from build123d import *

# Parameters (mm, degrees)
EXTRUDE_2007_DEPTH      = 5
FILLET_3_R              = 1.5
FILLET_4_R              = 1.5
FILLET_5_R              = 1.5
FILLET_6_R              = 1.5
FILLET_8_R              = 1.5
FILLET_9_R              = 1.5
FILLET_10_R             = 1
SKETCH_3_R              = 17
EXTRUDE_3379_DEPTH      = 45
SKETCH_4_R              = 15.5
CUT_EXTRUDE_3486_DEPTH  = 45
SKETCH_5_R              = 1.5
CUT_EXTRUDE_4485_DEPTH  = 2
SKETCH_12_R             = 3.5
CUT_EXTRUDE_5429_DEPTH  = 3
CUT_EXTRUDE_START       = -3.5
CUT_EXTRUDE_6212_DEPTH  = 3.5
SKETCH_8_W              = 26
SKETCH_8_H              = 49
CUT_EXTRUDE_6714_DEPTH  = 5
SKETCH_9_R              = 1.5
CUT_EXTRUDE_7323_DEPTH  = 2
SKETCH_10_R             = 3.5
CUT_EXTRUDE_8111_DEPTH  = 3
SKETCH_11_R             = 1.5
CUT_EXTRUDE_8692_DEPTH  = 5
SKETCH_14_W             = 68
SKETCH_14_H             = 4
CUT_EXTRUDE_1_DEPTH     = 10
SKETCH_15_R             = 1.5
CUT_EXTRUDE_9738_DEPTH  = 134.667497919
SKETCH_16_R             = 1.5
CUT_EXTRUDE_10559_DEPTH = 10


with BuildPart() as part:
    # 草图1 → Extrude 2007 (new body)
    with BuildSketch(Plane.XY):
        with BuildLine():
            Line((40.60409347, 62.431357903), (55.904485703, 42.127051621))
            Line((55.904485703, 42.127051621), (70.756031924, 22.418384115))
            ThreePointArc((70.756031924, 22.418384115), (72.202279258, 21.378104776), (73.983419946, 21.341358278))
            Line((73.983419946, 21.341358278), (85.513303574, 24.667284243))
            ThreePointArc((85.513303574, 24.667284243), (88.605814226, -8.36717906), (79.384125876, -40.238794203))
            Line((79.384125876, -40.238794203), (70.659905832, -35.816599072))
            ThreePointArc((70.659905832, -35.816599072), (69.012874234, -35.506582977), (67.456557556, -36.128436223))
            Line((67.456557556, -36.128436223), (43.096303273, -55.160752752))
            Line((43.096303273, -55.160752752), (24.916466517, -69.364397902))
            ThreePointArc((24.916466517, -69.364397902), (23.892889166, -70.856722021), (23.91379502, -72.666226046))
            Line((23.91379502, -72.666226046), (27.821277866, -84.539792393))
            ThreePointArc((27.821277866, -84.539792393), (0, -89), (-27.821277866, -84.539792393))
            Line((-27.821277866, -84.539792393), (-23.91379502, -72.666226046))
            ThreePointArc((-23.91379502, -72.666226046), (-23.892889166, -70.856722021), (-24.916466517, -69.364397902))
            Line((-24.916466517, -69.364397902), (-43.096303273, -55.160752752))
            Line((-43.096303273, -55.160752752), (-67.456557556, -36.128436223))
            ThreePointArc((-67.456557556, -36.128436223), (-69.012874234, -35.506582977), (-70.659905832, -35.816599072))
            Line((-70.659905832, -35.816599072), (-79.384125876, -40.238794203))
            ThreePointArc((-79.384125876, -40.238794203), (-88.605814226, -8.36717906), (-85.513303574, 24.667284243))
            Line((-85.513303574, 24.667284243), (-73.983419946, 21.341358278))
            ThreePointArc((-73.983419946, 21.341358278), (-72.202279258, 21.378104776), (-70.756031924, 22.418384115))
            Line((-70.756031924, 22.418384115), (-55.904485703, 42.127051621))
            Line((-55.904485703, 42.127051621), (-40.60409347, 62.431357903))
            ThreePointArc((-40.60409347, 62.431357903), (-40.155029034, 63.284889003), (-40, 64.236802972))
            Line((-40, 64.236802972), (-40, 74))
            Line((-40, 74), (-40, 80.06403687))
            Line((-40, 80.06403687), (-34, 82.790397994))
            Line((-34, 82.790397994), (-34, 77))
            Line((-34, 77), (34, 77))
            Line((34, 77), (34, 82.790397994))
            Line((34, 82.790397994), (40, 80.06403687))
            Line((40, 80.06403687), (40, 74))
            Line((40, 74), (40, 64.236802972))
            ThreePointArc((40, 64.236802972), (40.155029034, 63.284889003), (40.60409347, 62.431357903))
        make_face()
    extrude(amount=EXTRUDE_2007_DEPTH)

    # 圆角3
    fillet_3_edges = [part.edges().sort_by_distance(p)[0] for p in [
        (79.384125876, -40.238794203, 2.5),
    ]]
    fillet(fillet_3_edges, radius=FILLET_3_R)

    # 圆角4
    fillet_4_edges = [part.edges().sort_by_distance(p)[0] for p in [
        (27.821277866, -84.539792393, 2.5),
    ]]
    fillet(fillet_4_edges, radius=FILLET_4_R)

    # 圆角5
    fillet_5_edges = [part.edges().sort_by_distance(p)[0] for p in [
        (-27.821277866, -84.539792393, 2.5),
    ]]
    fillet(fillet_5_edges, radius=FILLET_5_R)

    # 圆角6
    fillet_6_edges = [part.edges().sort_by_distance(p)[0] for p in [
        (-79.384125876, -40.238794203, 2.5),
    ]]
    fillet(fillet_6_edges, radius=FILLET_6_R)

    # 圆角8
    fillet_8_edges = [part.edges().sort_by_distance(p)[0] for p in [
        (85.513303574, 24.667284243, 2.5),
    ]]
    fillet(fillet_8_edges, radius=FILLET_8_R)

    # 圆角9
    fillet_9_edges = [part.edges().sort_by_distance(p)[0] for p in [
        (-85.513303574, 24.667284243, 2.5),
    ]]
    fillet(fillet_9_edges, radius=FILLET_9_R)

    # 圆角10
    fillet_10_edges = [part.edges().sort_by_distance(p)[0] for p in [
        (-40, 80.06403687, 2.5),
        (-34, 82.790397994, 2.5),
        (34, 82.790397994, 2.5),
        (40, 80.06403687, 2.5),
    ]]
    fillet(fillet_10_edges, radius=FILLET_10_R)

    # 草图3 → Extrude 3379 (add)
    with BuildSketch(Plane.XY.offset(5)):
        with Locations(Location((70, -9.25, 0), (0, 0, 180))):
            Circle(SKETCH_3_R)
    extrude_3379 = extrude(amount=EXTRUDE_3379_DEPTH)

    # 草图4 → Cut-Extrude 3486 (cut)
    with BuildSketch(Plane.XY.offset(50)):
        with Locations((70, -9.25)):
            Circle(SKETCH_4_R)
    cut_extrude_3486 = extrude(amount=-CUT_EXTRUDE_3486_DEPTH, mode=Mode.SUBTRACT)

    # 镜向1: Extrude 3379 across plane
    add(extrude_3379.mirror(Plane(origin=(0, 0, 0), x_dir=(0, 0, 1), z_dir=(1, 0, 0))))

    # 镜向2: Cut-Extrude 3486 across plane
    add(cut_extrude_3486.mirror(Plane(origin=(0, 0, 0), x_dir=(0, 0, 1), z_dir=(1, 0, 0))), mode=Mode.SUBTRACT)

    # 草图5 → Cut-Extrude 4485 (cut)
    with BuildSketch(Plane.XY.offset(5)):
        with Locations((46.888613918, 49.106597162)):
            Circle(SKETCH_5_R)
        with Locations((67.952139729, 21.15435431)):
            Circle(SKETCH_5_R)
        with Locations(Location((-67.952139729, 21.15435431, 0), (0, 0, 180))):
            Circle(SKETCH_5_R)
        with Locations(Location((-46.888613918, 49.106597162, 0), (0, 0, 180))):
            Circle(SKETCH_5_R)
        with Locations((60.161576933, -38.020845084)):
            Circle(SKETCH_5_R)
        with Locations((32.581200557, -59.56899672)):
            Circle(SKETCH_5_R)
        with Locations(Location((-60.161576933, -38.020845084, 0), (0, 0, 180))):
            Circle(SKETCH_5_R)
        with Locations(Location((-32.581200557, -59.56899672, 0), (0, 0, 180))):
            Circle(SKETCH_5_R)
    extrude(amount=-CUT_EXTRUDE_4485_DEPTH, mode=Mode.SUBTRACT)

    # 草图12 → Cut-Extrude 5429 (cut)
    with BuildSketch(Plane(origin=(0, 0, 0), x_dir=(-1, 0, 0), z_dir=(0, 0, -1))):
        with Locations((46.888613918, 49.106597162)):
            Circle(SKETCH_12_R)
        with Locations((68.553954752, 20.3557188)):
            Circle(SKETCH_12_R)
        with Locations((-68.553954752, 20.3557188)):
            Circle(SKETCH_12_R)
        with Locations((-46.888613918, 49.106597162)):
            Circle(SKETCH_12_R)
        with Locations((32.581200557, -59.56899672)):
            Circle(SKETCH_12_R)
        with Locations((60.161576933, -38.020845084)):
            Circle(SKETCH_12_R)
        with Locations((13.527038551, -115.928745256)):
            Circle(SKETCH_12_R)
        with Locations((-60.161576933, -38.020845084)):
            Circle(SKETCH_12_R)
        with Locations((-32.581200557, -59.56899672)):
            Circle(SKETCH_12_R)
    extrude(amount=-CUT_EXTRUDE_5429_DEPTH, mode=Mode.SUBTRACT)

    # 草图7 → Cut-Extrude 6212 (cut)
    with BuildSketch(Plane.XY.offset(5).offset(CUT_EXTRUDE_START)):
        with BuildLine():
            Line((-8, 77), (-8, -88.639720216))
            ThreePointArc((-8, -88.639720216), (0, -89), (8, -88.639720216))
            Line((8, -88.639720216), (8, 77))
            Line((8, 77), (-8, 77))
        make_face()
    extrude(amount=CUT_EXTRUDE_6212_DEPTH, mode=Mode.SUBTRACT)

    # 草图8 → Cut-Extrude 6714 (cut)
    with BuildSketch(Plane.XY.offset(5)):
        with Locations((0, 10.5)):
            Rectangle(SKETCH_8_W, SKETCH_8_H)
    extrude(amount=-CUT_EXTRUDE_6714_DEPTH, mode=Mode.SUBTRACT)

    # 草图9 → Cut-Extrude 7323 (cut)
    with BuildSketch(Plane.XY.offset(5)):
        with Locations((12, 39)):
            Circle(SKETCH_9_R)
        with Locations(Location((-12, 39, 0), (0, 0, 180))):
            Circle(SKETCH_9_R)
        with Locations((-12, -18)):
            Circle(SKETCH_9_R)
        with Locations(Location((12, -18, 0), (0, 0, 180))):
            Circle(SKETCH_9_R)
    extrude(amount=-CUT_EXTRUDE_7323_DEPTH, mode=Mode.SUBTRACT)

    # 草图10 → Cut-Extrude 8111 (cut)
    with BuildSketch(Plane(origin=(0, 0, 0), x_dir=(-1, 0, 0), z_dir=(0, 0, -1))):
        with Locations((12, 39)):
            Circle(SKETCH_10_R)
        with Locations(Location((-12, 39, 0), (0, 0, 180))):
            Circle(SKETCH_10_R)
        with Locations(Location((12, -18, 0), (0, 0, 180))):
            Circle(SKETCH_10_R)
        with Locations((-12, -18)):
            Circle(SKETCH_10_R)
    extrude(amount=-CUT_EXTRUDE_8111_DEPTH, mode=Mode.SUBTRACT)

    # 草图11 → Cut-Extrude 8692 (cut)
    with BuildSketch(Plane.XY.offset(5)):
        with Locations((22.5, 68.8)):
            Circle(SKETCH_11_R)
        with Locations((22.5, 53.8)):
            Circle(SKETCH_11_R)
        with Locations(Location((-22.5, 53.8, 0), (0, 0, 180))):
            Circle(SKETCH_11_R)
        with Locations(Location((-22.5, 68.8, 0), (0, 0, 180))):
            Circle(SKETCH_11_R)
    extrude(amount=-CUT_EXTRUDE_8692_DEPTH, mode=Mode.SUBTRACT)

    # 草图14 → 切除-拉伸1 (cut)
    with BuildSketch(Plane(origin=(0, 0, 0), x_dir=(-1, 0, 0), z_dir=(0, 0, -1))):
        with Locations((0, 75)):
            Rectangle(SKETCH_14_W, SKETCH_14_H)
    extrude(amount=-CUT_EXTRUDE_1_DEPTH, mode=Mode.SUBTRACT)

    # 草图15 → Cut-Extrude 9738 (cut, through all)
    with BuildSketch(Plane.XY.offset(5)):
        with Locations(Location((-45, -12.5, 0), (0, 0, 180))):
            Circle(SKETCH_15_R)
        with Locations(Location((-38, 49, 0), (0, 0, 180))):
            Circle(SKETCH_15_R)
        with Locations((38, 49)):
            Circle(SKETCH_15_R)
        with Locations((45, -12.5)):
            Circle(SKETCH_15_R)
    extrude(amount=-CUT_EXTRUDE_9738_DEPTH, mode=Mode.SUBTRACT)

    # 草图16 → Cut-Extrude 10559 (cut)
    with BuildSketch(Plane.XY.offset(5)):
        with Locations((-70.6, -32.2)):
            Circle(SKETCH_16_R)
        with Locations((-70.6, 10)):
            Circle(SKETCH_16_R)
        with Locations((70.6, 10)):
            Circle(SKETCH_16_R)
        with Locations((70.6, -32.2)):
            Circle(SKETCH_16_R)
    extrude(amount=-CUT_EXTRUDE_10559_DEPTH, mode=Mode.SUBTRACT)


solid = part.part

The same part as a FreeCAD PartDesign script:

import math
import FreeCAD as App
import Part
import Sketcher
Q = App.Units.Quantity


def edges_at(feature, points):
    """Names of the edges that pass closest to the given points."""
    edges = feature.Shape.Edges
    near = lambda p: min(range(len(edges)), key=lambda i: edges[i].distToShape(Part.Vertex(*p))[0])
    return sorted({f"Edge{near(p) + 1}" for p in points})

doc = App.newDocument("Part")
body = doc.addObject("PartDesign::Body", "Body")

# Sketch on XY plane
sketch1 = body.newObject("Sketcher::SketchObject", "Sketch")
sketch1.AttachmentSupport = (doc.getObject("XY_Plane"), [""])
sketch1.MapMode = "FlatFace"
sketch1.addGeometry(Part.LineSegment(App.Vector(55.904486, 42.127052, 0), App.Vector(40.604093, 62.431358, 0)), False)
sketch1.addGeometry(Part.ArcOfCircle(Part.Circle(App.Vector(43, 64.236803, 0), App.Vector(0, 0, 1), 3), math.radians(180), math.radians(217)), False)
sketch1.addGeometry(Part.LineSegment(App.Vector(40, 64.236803, 0), App.Vector(40, 80.064037, 0)), False)
sketch1.addGeometry(Part.LineSegment(App.Vector(40, 80.064037, 0), App.Vector(34, 82.790398, 0)), False)
sketch1.addGeometry(Part.LineSegment(App.Vector(34, 82.790398, 0), App.Vector(34, 77, 0)), False)
sketch1.addGeometry(Part.LineSegment(App.Vector(34, 77, 0), App.Vector(-34, 77, 0)), False)
sketch1.addGeometry(Part.LineSegment(App.Vector(-34, 77, 0), App.Vector(-34, 82.790398, 0)), False)
sketch1.addGeometry(Part.LineSegment(App.Vector(-34, 82.790398, 0), App.Vector(-40, 80.064037, 0)), False)
sketch1.addGeometry(Part.LineSegment(App.Vector(-40, 80.064037, 0), App.Vector(-40, 64.236803, 0)), False)
sketch1.addGeometry(Part.ArcOfCircle(Part.Circle(App.Vector(-43, 64.236803, 0), App.Vector(0, 0, 1), 3), math.radians(-37), math.radians(0)), False)
sketch1.addGeometry(Part.LineSegment(App.Vector(-40.604093, 62.431358, 0), App.Vector(-55.904486, 42.127052, 0)), False)
sketch1.addGeometry(Part.LineSegment(App.Vector(-55.904486, 42.127052, 0), App.Vector(-70.756032, 22.418384, 0)), False)
sketch1.addGeometry(Part.ArcOfCircle(Part.Circle(App.Vector(-73.151938, 24.223829, 0), App.Vector(0, 0, 1), 3), math.radians(-106.090807), math.radians(-37)), False)
sketch1.addGeometry(Part.LineSegment(App.Vector(-73.98342, 21.341358, 0), App.Vector(-85.513304, 24.667284, 0)), False)
sketch1.addGeometry(Part.ArcOfCircle(Part.Circle(App.Vector(0, 0, 0), App.Vector(0, 0, 1), 89), math.radians(163.909193), math.radians(206.879865)), False)
sketch1.addGeometry(Part.LineSegment(App.Vector(-79.384126, -40.238794, 0), App.Vector(-70.659906, -35.816599, 0)), False)
sketch1.addGeometry(Part.ArcOfCircle(Part.Circle(App.Vector(-69.303542, -38.492468, 0), App.Vector(0, 0, 1), 3), math.radians(52), math.radians(116.879865)), False)
sketch1.addGeometry(Part.LineSegment(App.Vector(-67.456558, -36.128436, 0), App.Vector(-43.096303, -55.160753, 0)), False)
sketch1.addGeometry(Part.LineSegment(App.Vector(-43.096303, -55.160753, 0), App.Vector(-24.916467, -69.364398, 0)), False)
sketch1.addGeometry(Part.ArcOfCircle(Part.Circle(App.Vector(-26.763451, -71.72843, 0), App.Vector(0, 0, 1), 3), math.radians(-18.215906), math.radians(52)), False)
sketch1.addGeometry(Part.LineSegment(App.Vector(-23.913795, -72.666226, 0), App.Vector(-27.821278, -84.539792, 0)), False)
sketch1.addGeometry(Part.ArcOfCircle(Part.Circle(App.Vector(0, 0, 0), App.Vector(0, 0, 1), 89), math.radians(-108.215906), math.radians(-71.784094)), False)
sketch1.addGeometry(Part.LineSegment(App.Vector(27.821278, -84.539792, 0), App.Vector(23.913795, -72.666226, 0)), False)
sketch1.addGeometry(Part.ArcOfCircle(Part.Circle(App.Vector(26.763451, -71.72843, 0), App.Vector(0, 0, 1), 3), math.radians(128), math.radians(198.215906)), False)
sketch1.addGeometry(Part.LineSegment(App.Vector(24.916467, -69.364398, 0), App.Vector(43.096303, -55.160753, 0)), False)
sketch1.addGeometry(Part.LineSegment(App.Vector(43.096303, -55.160753, 0), App.Vector(67.456558, -36.128436, 0)), False)
sketch1.addGeometry(Part.ArcOfCircle(Part.Circle(App.Vector(69.303542, -38.492468, 0), App.Vector(0, 0, 1), 3), math.radians(63.120135), math.radians(128)), False)
sketch1.addGeometry(Part.LineSegment(App.Vector(70.659906, -35.816599, 0), App.Vector(79.384126, -40.238794, 0)), False)
sketch1.addGeometry(Part.ArcOfCircle(Part.Circle(App.Vector(0, 0, 0), App.Vector(0, 0, 1), 89), math.radians(-26.879865), math.radians(16.090807)), False)
sketch1.addGeometry(Part.LineSegment(App.Vector(85.513304, 24.667284, 0), App.Vector(73.98342, 21.341358, 0)), False)
sketch1.addGeometry(Part.ArcOfCircle(Part.Circle(App.Vector(73.151938, 24.223829, 0), App.Vector(0, 0, 1), 3), math.radians(-143), math.radians(-73.909193)), False)
sketch1.addGeometry(Part.LineSegment(App.Vector(70.756032, 22.418384, 0), App.Vector(55.904486, 42.127052, 0)), False)
sketch1.addConstraint(Sketcher.Constraint("Tangent", 0, 2, 1, 2))
sketch1.addConstraint(Sketcher.Constraint("Tangent", 1, 1, 2, 1))
sketch1.addConstraint(Sketcher.Constraint("Coincident", 2, 2, 3, 1))
sketch1.addConstraint(Sketcher.Constraint("Coincident", 3, 2, 4, 1))
sketch1.addConstraint(Sketcher.Constraint("Coincident", 4, 2, 5, 1))
sketch1.addConstraint(Sketcher.Constraint("Coincident", 5, 2, 6, 1))
sketch1.addConstraint(Sketcher.Constraint("Coincident", 6, 2, 7, 1))
sketch1.addConstraint(Sketcher.Constraint("Coincident", 7, 2, 8, 1))
sketch1.addConstraint(Sketcher.Constraint("Tangent", 8, 2, 9, 2))
sketch1.addConstraint(Sketcher.Constraint("Tangent", 9, 1, 10, 1))
sketch1.addConstraint(Sketcher.Constraint("Coincident", 10, 2, 11, 1))
sketch1.addConstraint(Sketcher.Constraint("Tangent", 11, 2, 12, 2))
sketch1.addConstraint(Sketcher.Constraint("Tangent", 12, 1, 13, 1))
sketch1.addConstraint(Sketcher.Constraint("Coincident", 13, 2, 14, 1))
sketch1.addConstraint(Sketcher.Constraint("Coincident", 14, 2, 15, 1))
sketch1.addConstraint(Sketcher.Constraint("Tangent", 15, 2, 16, 2))
sketch1.addConstraint(Sketcher.Constraint("Tangent", 16, 1, 17, 1))
sketch1.addConstraint(Sketcher.Constraint("Coincident", 17, 2, 18, 1))
sketch1.addConstraint(Sketcher.Constraint("Tangent", 18, 2, 19, 2))
sketch1.addConstraint(Sketcher.Constraint("Tangent", 19, 1, 20, 1))
sketch1.addConstraint(Sketcher.Constraint("Coincident", 20, 2, 21, 1))
sketch1.addConstraint(Sketcher.Constraint("Coincident", 21, 2, 22, 1))
sketch1.addConstraint(Sketcher.Constraint("Tangent", 22, 2, 23, 2))
sketch1.addConstraint(Sketcher.Constraint("Tangent", 23, 1, 24, 1))
sketch1.addConstraint(Sketcher.Constraint("Coincident", 24, 2, 25, 1))
sketch1.addConstraint(Sketcher.Constraint("Tangent", 25, 2, 26, 2))
sketch1.addConstraint(Sketcher.Constraint("Tangent", 26, 1, 27, 1))
sketch1.addConstraint(Sketcher.Constraint("Coincident", 27, 2, 28, 1))
sketch1.addConstraint(Sketcher.Constraint("Coincident", 28, 2, 29, 1))
sketch1.addConstraint(Sketcher.Constraint("Tangent", 29, 2, 30, 2))
sketch1.addConstraint(Sketcher.Constraint("Tangent", 30, 1, 31, 1))
sketch1.addConstraint(Sketcher.Constraint("Coincident", 31, 2, 0, 1))
sketch1.addConstraint(Sketcher.Constraint("Vertical", 2))
sketch1.addConstraint(Sketcher.Constraint("Vertical", 4))
sketch1.addConstraint(Sketcher.Constraint("Horizontal", 5))
sketch1.addConstraint(Sketcher.Constraint("Vertical", 6))
sketch1.addConstraint(Sketcher.Constraint("Vertical", 8))
sketch1.addConstraint(Sketcher.Constraint("Coincident", 14, 3, -1, 1))
sketch1.addConstraint(Sketcher.Constraint("Coincident", 21, 3, -1, 1))
sketch1.addConstraint(Sketcher.Constraint("Coincident", 28, 3, -1, 1))
sketch1.addConstraint(Sketcher.Constraint("Equal", 1, 9))
sketch1.addConstraint(Sketcher.Constraint("Equal", 9, 12))
sketch1.addConstraint(Sketcher.Constraint("Equal", 12, 16))
sketch1.addConstraint(Sketcher.Constraint("Equal", 16, 19))
sketch1.addConstraint(Sketcher.Constraint("Equal", 14, 21))
sketch1.addConstraint(Sketcher.Constraint("Equal", 19, 23))
sketch1.addConstraint(Sketcher.Constraint("Equal", 23, 26))
sketch1.addConstraint(Sketcher.Constraint("Equal", 21, 28))
sketch1.addConstraint(Sketcher.Constraint("Equal", 26, 30))
sketch1.addConstraint(Sketcher.Constraint("Symmetric", 1, 3, 9, 3, -2))
sketch1.addConstraint(Sketcher.Constraint("Symmetric", 19, 3, 23, 3, -2))
sketch1.addConstraint(Sketcher.Constraint("Symmetric", 16, 3, 26, 3, -2))
sketch1.addConstraint(Sketcher.Constraint("Symmetric", 12, 3, 30, 3, -2))
sketch1.addConstraint(Sketcher.Constraint("Symmetric", 3, 2, 6, 2, -2))
sketch1.addConstraint(Sketcher.Constraint("Symmetric", 17, 2, 24, 2, -2))
sketch1.addConstraint(Sketcher.Constraint("Symmetric", 10, 2, 31, 2, -2))
sketch1.addConstraint(Sketcher.Constraint("Parallel", 10, 11))
sketch1.addConstraint(Sketcher.Constraint("Parallel", 17, 18))
sketch1.addConstraint(Sketcher.Constraint("Horizontal", 2, 2, 7, 2))
sketch1.addConstraint(Sketcher.Constraint("Horizontal", 20, 2, 21, 2))
sketch1.addConstraint(Sketcher.Constraint("Horizontal", 15, 2, 26, 1))
sketch1.addConstraint(Sketcher.Constraint("Horizontal", 13, 2, 28, 2))
sketch1.addConstraint(Sketcher.Constraint("Radius", 1, 3.0))
sketch1.addConstraint(Sketcher.Constraint("Radius", 14, 89.0))
sketch1.addConstraint(Sketcher.Constraint("DistanceX", 5, 2, 5, 1, 68.0))
sketch1.addConstraint(Sketcher.Constraint("Angle", 0, Q("127 deg")))
sketch1.addConstraint(Sketcher.Constraint("Angle", 17, Q("-38 deg")))
sketch1.addConstraint(Sketcher.Constraint("Distance", 13, 12.0))
sketch1.addConstraint(Sketcher.Constraint("DistanceX", -1, 1, 1, 3, 43.0))
sketch1.addConstraint(Sketcher.Constraint("DistanceY", -1, 1, 4, 2, 77.0))
sketch1.addConstraint(Sketcher.Constraint("Distance", 20, 12.5))
sketch1.addConstraint(Sketcher.Constraint("DistanceY", 12, 1, 9, 1, 41.09))
sketch1.addConstraint(Sketcher.Constraint("DistanceY", 15, 2, -1, 1, 35.816599))
sketch1.addConstraint(Sketcher.Constraint("DistanceX", 19, 3, 23, 3, 53.526902))
sketch1.addConstraint(Sketcher.Constraint("DistanceY", 11, 2, 13, 2, 2.2489))
sketch1.addConstraint(Sketcher.Constraint("DistanceY", 23, 1, 26, 1, 33.547799))
sketch1.addConstraint(Sketcher.Constraint("DistanceY", 2, 1, 2, 2, 15.827234))
sketch1.addConstraint(Sketcher.Constraint("DistanceY", 4, 2, 4, 1, 5.790398))
sketch1.addConstraint(Sketcher.Constraint("DistanceX", 16, 3, -1, 1, 69.303542))
sketch1.addConstraint(Sketcher.Constraint("DistanceY", -1, 1, 10, 2, 42.127052))
sketch1.addConstraint(Sketcher.Constraint("DistanceX", 16, 3, 17, 2, 26.207239))
pad1 = body.newObject("PartDesign::Pad", "Pad")
pad1.Profile = sketch1
pad1.Length = 5
doc.recompute()

fillet = body.newObject("PartDesign::Fillet", "Fillet")
fillet.Base = (pad1, edges_at(pad1, [(79.384, -40.239, 2.5)]))
fillet.Radius = 1.5
doc.recompute()

fillet2 = body.newObject("PartDesign::Fillet", "Fillet001")
fillet2.Base = (fillet, edges_at(fillet, [(27.821, -84.54, 2.5)]))
fillet2.Radius = 1.5
doc.recompute()

fillet3 = body.newObject("PartDesign::Fillet", "Fillet002")
fillet3.Base = (fillet2, edges_at(fillet2, [(-27.821, -84.54, 2.5)]))
fillet3.Radius = 1.5
doc.recompute()

fillet4 = body.newObject("PartDesign::Fillet", "Fillet003")
fillet4.Base = (fillet3, edges_at(fillet3, [(-79.384, -40.239, 2.5)]))
fillet4.Radius = 1.5
doc.recompute()

fillet5 = body.newObject("PartDesign::Fillet", "Fillet004")
fillet5.Base = (fillet4, edges_at(fillet4, [(85.513, 24.667, 2.5)]))
fillet5.Radius = 1.5
doc.recompute()

fillet6 = body.newObject("PartDesign::Fillet", "Fillet005")
fillet6.Base = (fillet5, edges_at(fillet5, [(-85.513, 24.667, 2.5)]))
fillet6.Radius = 1.5
doc.recompute()

fillet7 = body.newObject("PartDesign::Fillet", "Fillet006")
fillet7.Base = (fillet6, edges_at(fillet6, [
    (-40, 80.064, 2.5),
    (-34, 82.79, 2.5),
    (34, 82.79, 2.5),
    (40, 80.064, 2.5),
]))
fillet7.Radius = 1

# Sketch on XY plane
sketch2 = body.newObject("Sketcher::SketchObject", "Sketch001")
sketch2.AttachmentSupport = (doc.getObject("XY_Plane"), [""])
sketch2.MapMode = "FlatFace"
sketch2.AttachmentOffset = App.Placement(App.Vector(0, 0, 5), App.Rotation())
sketch2.addGeometry(Part.Circle(App.Vector(70, -9.25, 0), App.Vector(0, 0, 1), 17), False)
sketch2.addConstraint(Sketcher.Constraint("Diameter", 0, 34.0))
sketch2.addConstraint(Sketcher.Constraint("DistanceX", -1, 1, 0, 3, 70.0))
sketch2.addConstraint(Sketcher.Constraint("DistanceY", 0, 3, -1, 1, 9.25))
pad2 = body.newObject("PartDesign::Pad", "Pad001")
pad2.Profile = sketch2
pad2.Length = 45

# Sketch on XY plane
sketch3 = body.newObject("Sketcher::SketchObject", "Sketch002")
sketch3.AttachmentSupport = (doc.getObject("XY_Plane"), [""])
sketch3.MapMode = "FlatFace"
sketch3.AttachmentOffset = App.Placement(App.Vector(0, 0, 50), App.Rotation())
sketch3.addGeometry(Part.Circle(App.Vector(70, -9.25, 0), App.Vector(0, 0, 1), 15.5), False)
sketch3.addConstraint(Sketcher.Constraint("Diameter", 0, 31.0))
sketch3.addConstraint(Sketcher.Constraint("DistanceX", -1, 1, 0, 3, 70.0))
sketch3.addConstraint(Sketcher.Constraint("DistanceY", 0, 3, -1, 1, 9.25))
pocket1 = body.newObject("PartDesign::Pocket", "Pocket")
pocket1.Profile = sketch3
pocket1.Length = 45
doc.recompute()

mirrored = body.newObject("PartDesign::Mirrored", "Mirrored")
mirrored.Originals = [pad2]
mirrored.MirrorPlane = (doc.getObject("YZ_Plane"), [""])
body.Tip = mirrored
doc.recompute()

mirrored2 = body.newObject("PartDesign::Mirrored", "Mirrored001")
mirrored2.Originals = [pocket1]
mirrored2.MirrorPlane = (doc.getObject("YZ_Plane"), [""])
body.Tip = mirrored2

# Sketch on XY plane
sketch4 = body.newObject("Sketcher::SketchObject", "Sketch003")
sketch4.AttachmentSupport = (doc.getObject("XY_Plane"), [""])
sketch4.MapMode = "FlatFace"
sketch4.AttachmentOffset = App.Placement(App.Vector(0, 0, 5), App.Rotation())
sketch4.addGeometry(Part.Circle(App.Vector(46.888614, 49.106597, 0), App.Vector(0, 0, 1), 1.5), False)
sketch4.addGeometry(Part.Circle(App.Vector(67.95214, 21.154354, 0), App.Vector(0, 0, 1), 1.5), False)
sketch4.addGeometry(Part.Circle(App.Vector(-67.95214, 21.154354, 0), App.Vector(0, 0, 1), 1.5), False)
sketch4.addGeometry(Part.Circle(App.Vector(-46.888614, 49.106597, 0), App.Vector(0, 0, 1), 1.5), False)
sketch4.addGeometry(Part.Circle(App.Vector(60.161577, -38.020845, 0), App.Vector(0, 0, 1), 1.5), False)
sketch4.addGeometry(Part.Circle(App.Vector(32.581201, -59.568997, 0), App.Vector(0, 0, 1), 1.5), False)
sketch4.addGeometry(Part.Circle(App.Vector(-60.161577, -38.020845, 0), App.Vector(0, 0, 1), 1.5), False)
sketch4.addGeometry(Part.Circle(App.Vector(-32.581201, -59.568997, 0), App.Vector(0, 0, 1), 1.5), False)
sketch4.addConstraint(Sketcher.Constraint("Equal", 0, 1))
sketch4.addConstraint(Sketcher.Constraint("Equal", 1, 2))
sketch4.addConstraint(Sketcher.Constraint("Equal", 2, 3))
sketch4.addConstraint(Sketcher.Constraint("Equal", 3, 4))
sketch4.addConstraint(Sketcher.Constraint("Equal", 4, 5))
sketch4.addConstraint(Sketcher.Constraint("Equal", 5, 6))
sketch4.addConstraint(Sketcher.Constraint("Equal", 6, 7))
sketch4.addConstraint(Sketcher.Constraint("Symmetric", 1, 3, 2, 3, -2))
sketch4.addConstraint(Sketcher.Constraint("Symmetric", 0, 3, 3, 3, -2))
sketch4.addConstraint(Sketcher.Constraint("Symmetric", 4, 3, 6, 3, -2))
sketch4.addConstraint(Sketcher.Constraint("Symmetric", 5, 3, 7, 3, -2))
sketch4.addConstraint(Sketcher.Constraint("Diameter", 0, 3.0))
sketch4.addConstraint(Sketcher.Constraint("DistanceX", -1, 1, 5, 3, 32.581201))
sketch4.addConstraint(Sketcher.Constraint("DistanceY", 4, 3, 1, 3, 59.175199))
sketch4.addConstraint(Sketcher.Constraint("DistanceX", -1, 1, 1, 3, 67.95214))
sketch4.addConstraint(Sketcher.Constraint("DistanceX", 3, 3, 4, 3, 107.050191))
sketch4.addConstraint(Sketcher.Constraint("DistanceY", 5, 3, 4, 3, 21.548152))
sketch4.addConstraint(Sketcher.Constraint("DistanceX", -1, 1, 0, 3, 46.888614))
sketch4.addConstraint(Sketcher.Constraint("DistanceY", -1, 1, 0, 3, 49.106597))
sketch4.addConstraint(Sketcher.Constraint("DistanceY", -1, 1, 1, 3, 21.154354))
pocket2 = body.newObject("PartDesign::Pocket", "Pocket001")
pocket2.Profile = sketch4
pocket2.Length = 2

# Sketch on XY plane
sketch5 = body.newObject("Sketcher::SketchObject", "Sketch004")
sketch5.AttachmentSupport = (doc.getObject("XY_Plane"), [""])
sketch5.MapMode = "FlatFace"
sketch5.addGeometry(Part.Circle(App.Vector(-46.888614, 49.106597, 0), App.Vector(0, 0, 1), 3.5), False)
sketch5.addGeometry(Part.Circle(App.Vector(-68.553955, 20.355719, 0), App.Vector(0, 0, 1), 3.5), False)
sketch5.addGeometry(Part.Circle(App.Vector(68.553955, 20.355719, 0), App.Vector(0, 0, 1), 3.5), False)
sketch5.addGeometry(Part.Circle(App.Vector(46.888614, 49.106597, 0), App.Vector(0, 0, 1), 3.5), False)
sketch5.addGeometry(Part.Circle(App.Vector(-32.581201, -59.568997, 0), App.Vector(0, 0, 1), 3.5), False)
sketch5.addGeometry(Part.Circle(App.Vector(-60.161577, -38.020845, 0), App.Vector(0, 0, 1), 3.5), False)
sketch5.addGeometry(Part.Circle(App.Vector(-13.527039, -115.928745, 0), App.Vector(0, 0, 1), 3.5), False)
sketch5.addGeometry(Part.Circle(App.Vector(60.161577, -38.020845, 0), App.Vector(0, 0, 1), 3.5), False)
sketch5.addGeometry(Part.Circle(App.Vector(32.581201, -59.568997, 0), App.Vector(0, 0, 1), 3.5), False)
sketch5.addConstraint(Sketcher.Constraint("Equal", 0, 1))
sketch5.addConstraint(Sketcher.Constraint("Equal", 1, 2))
sketch5.addConstraint(Sketcher.Constraint("Equal", 2, 3))
sketch5.addConstraint(Sketcher.Constraint("Equal", 3, 4))
sketch5.addConstraint(Sketcher.Constraint("Equal", 4, 5))
sketch5.addConstraint(Sketcher.Constraint("Equal", 5, 6))
sketch5.addConstraint(Sketcher.Constraint("Equal", 6, 7))
sketch5.addConstraint(Sketcher.Constraint("Equal", 7, 8))
sketch5.addConstraint(Sketcher.Constraint("Symmetric", 1, 3, 2, 3, -2))
sketch5.addConstraint(Sketcher.Constraint("Symmetric", 0, 3, 3, 3, -2))
sketch5.addConstraint(Sketcher.Constraint("Symmetric", 5, 3, 7, 3, -2))
sketch5.addConstraint(Sketcher.Constraint("Symmetric", 4, 3, 8, 3, -2))
sketch5.addConstraint(Sketcher.Constraint("Diameter", 0, 7.0))
sketch5.addConstraint(Sketcher.Constraint("DistanceX", 4, 3, -1, 1, 32.581201))
sketch5.addConstraint(Sketcher.Constraint("DistanceY", 6, 3, 5, 3, 77.9079))
sketch5.addConstraint(Sketcher.Constraint("DistanceY", -1, 1, 1, 3, 20.355719))
sketch5.addConstraint(Sketcher.Constraint("DistanceX", 6, 3, -1, 1, 13.527039))
sketch5.addConstraint(Sketcher.Constraint("DistanceX", 1, 3, 0, 3, 21.665341))
sketch5.addConstraint(Sketcher.Constraint("DistanceY", 1, 3, 0, 3, 28.750878))
sketch5.addConstraint(Sketcher.Constraint("DistanceX", 0, 3, 2, 3, 115.442569))
sketch5.addConstraint(Sketcher.Constraint("DistanceY", 4, 3, 5, 3, 21.548152))
sketch5.addConstraint(Sketcher.Constraint("DistanceX", 5, 3, 3, 3, 107.050191))
sketch5.addConstraint(Sketcher.Constraint("DistanceY", 4, 3, -1, 1, 59.568997))
pocket3 = body.newObject("PartDesign::Pocket", "Pocket002")
pocket3.Profile = sketch5
pocket3.Length = 3
pocket3.Reversed = True

# Sketch on XY plane
sketch6 = body.newObject("Sketcher::SketchObject", "Sketch005")
sketch6.AttachmentSupport = (doc.getObject("XY_Plane"), [""])
sketch6.MapMode = "FlatFace"
sketch6.AttachmentOffset = App.Placement(App.Vector(0, 0, 1.5), App.Rotation())
sketch6.addGeometry(Part.LineSegment(App.Vector(-8, 77, 0), App.Vector(-8, -88.63972, 0)), False)
sketch6.addGeometry(Part.ArcOfCircle(Part.Circle(App.Vector(0, 0, 0), App.Vector(0, 0, 1), 89), math.radians(-95.157143), math.radians(-84.842857)), False)
sketch6.addGeometry(Part.LineSegment(App.Vector(8, -88.63972, 0), App.Vector(8, 77, 0)), False)
sketch6.addGeometry(Part.LineSegment(App.Vector(8, 77, 0), App.Vector(-8, 77, 0)), False)
sketch6.addConstraint(Sketcher.Constraint("Coincident", 0, 2, 1, 1))
sketch6.addConstraint(Sketcher.Constraint("Coincident", 1, 2, 2, 1))
sketch6.addConstraint(Sketcher.Constraint("Coincident", 2, 2, 3, 1))
sketch6.addConstraint(Sketcher.Constraint("Coincident", 3, 2, 0, 1))
sketch6.addConstraint(Sketcher.Constraint("Vertical", 0))
sketch6.addConstraint(Sketcher.Constraint("Vertical", 2))
sketch6.addConstraint(Sketcher.Constraint("Horizontal", 3))
sketch6.addConstraint(Sketcher.Constraint("Coincident", 1, 3, -1, 1))
sketch6.addConstraint(Sketcher.Constraint("Horizontal", 0, 2, 1, 2))
sketch6.addConstraint(Sketcher.Constraint("Radius", 1, 89.0))
sketch6.addConstraint(Sketcher.Constraint("DistanceX", 3, 2, 3, 1, 16.0))
sketch6.addConstraint(Sketcher.Constraint("DistanceY", -1, 1, 2, 2, 77.0))
pocket4 = body.newObject("PartDesign::Pocket", "Pocket003")
pocket4.Profile = sketch6
pocket4.Length = 3.5
pocket4.Reversed = True

# Sketch on XY plane
sketch7 = body.newObject("Sketcher::SketchObject", "Sketch006")
sketch7.AttachmentSupport = (doc.getObject("XY_Plane"), [""])
sketch7.MapMode = "FlatFace"
sketch7.AttachmentOffset = App.Placement(App.Vector(0, 0, 5), App.Rotation())
sketch7.addGeometry(Part.LineSegment(App.Vector(-13, 35, 0), App.Vector(-13, -14, 0)), False)
sketch7.addGeometry(Part.LineSegment(App.Vector(-13, -14, 0), App.Vector(13, -14, 0)), False)
sketch7.addGeometry(Part.LineSegment(App.Vector(13, -14, 0), App.Vector(13, 35, 0)), False)
sketch7.addGeometry(Part.LineSegment(App.Vector(13, 35, 0), App.Vector(-13, 35, 0)), False)
sketch7.addConstraint(Sketcher.Constraint("Coincident", 0, 2, 1, 1))
sketch7.addConstraint(Sketcher.Constraint("Coincident", 1, 2, 2, 1))
sketch7.addConstraint(Sketcher.Constraint("Coincident", 2, 2, 3, 1))
sketch7.addConstraint(Sketcher.Constraint("Coincident", 3, 2, 0, 1))
sketch7.addConstraint(Sketcher.Constraint("Vertical", 0))
sketch7.addConstraint(Sketcher.Constraint("Horizontal", 1))
sketch7.addConstraint(Sketcher.Constraint("Vertical", 2))
sketch7.addConstraint(Sketcher.Constraint("Horizontal", 3))
sketch7.addConstraint(Sketcher.Constraint("DistanceX", 1, 1, 1, 2, 26.0))
sketch7.addConstraint(Sketcher.Constraint("DistanceY", 0, 2, 0, 1, 49.0))
sketch7.addConstraint(Sketcher.Constraint("DistanceX", 0, 2, -1, 1, 13.0))
sketch7.addConstraint(Sketcher.Constraint("DistanceY", 0, 2, -1, 1, 14.0))
pocket5 = body.newObject("PartDesign::Pocket", "Pocket004")
pocket5.Profile = sketch7
pocket5.Length = 5

# Sketch on XY plane
sketch8 = body.newObject("Sketcher::SketchObject", "Sketch007")
sketch8.AttachmentSupport = (doc.getObject("XY_Plane"), [""])
sketch8.MapMode = "FlatFace"
sketch8.AttachmentOffset = App.Placement(App.Vector(0, 0, 5), App.Rotation())
sketch8.addGeometry(Part.Circle(App.Vector(12, 39, 0), App.Vector(0, 0, 1), 1.5), False)
sketch8.addGeometry(Part.Circle(App.Vector(-12, 39, 0), App.Vector(0, 0, 1), 1.5), False)
sketch8.addGeometry(Part.Circle(App.Vector(-12, -18, 0), App.Vector(0, 0, 1), 1.5), False)
sketch8.addGeometry(Part.Circle(App.Vector(12, -18, 0), App.Vector(0, 0, 1), 1.5), False)
sketch8.addConstraint(Sketcher.Constraint("Equal", 0, 1))
sketch8.addConstraint(Sketcher.Constraint("Equal", 1, 2))
sketch8.addConstraint(Sketcher.Constraint("Equal", 2, 3))
sketch8.addConstraint(Sketcher.Constraint("Symmetric", 0, 3, 1, 3, -2))
sketch8.addConstraint(Sketcher.Constraint("Symmetric", 2, 3, 3, 3, -2))
sketch8.addConstraint(Sketcher.Constraint("Vertical", 1, 3, 2, 3))
sketch8.addConstraint(Sketcher.Constraint("Diameter", 0, 3.0))
sketch8.addConstraint(Sketcher.Constraint("DistanceX", -1, 1, 0, 3, 12.0))
sketch8.addConstraint(Sketcher.Constraint("DistanceY", -1, 1, 0, 3, 39.0))
sketch8.addConstraint(Sketcher.Constraint("DistanceY", 2, 3, -1, 1, 18.0))
pocket6 = body.newObject("PartDesign::Pocket", "Pocket005")
pocket6.Profile = sketch8
pocket6.Length = 2

# Sketch on XY plane
sketch9 = body.newObject("Sketcher::SketchObject", "Sketch008")
sketch9.AttachmentSupport = (doc.getObject("XY_Plane"), [""])
sketch9.MapMode = "FlatFace"
sketch9.addGeometry(Part.Circle(App.Vector(-12, 39, 0), App.Vector(0, 0, 1), 3.5), False)
sketch9.addGeometry(Part.Circle(App.Vector(12, 39, 0), App.Vector(0, 0, 1), 3.5), False)
sketch9.addGeometry(Part.Circle(App.Vector(-12, -18, 0), App.Vector(0, 0, 1), 3.5), False)
sketch9.addGeometry(Part.Circle(App.Vector(12, -18, 0), App.Vector(0, 0, 1), 3.5), False)
sketch9.addConstraint(Sketcher.Constraint("Equal", 0, 1))
sketch9.addConstraint(Sketcher.Constraint("Equal", 1, 2))
sketch9.addConstraint(Sketcher.Constraint("Equal", 2, 3))
sketch9.addConstraint(Sketcher.Constraint("Symmetric", 0, 3, 1, 3, -2))
sketch9.addConstraint(Sketcher.Constraint("Symmetric", 2, 3, 3, 3, -2))
sketch9.addConstraint(Sketcher.Constraint("Vertical", 0, 3, 2, 3))
sketch9.addConstraint(Sketcher.Constraint("Diameter", 0, 7.0))
sketch9.addConstraint(Sketcher.Constraint("DistanceX", 0, 3, -1, 1, 12.0))
sketch9.addConstraint(Sketcher.Constraint("DistanceY", -1, 1, 0, 3, 39.0))
sketch9.addConstraint(Sketcher.Constraint("DistanceY", 2, 3, -1, 1, 18.0))
pocket7 = body.newObject("PartDesign::Pocket", "Pocket006")
pocket7.Profile = sketch9
pocket7.Length = 3
pocket7.Reversed = True

# Sketch on XY plane
sketch10 = body.newObject("Sketcher::SketchObject", "Sketch009")
sketch10.AttachmentSupport = (doc.getObject("XY_Plane"), [""])
sketch10.MapMode = "FlatFace"
sketch10.AttachmentOffset = App.Placement(App.Vector(0, 0, 5), App.Rotation())
sketch10.addGeometry(Part.Circle(App.Vector(22.5, 68.8, 0), App.Vector(0, 0, 1), 1.5), False)
sketch10.addGeometry(Part.Circle(App.Vector(22.5, 53.8, 0), App.Vector(0, 0, 1), 1.5), False)
sketch10.addGeometry(Part.Circle(App.Vector(-22.5, 53.8, 0), App.Vector(0, 0, 1), 1.5), False)
sketch10.addGeometry(Part.Circle(App.Vector(-22.5, 68.8, 0), App.Vector(0, 0, 1), 1.5), False)
sketch10.addConstraint(Sketcher.Constraint("Equal", 0, 1))
sketch10.addConstraint(Sketcher.Constraint("Equal", 1, 2))
sketch10.addConstraint(Sketcher.Constraint("Equal", 2, 3))
sketch10.addConstraint(Sketcher.Constraint("Symmetric", 1, 3, 2, 3, -2))
sketch10.addConstraint(Sketcher.Constraint("Symmetric", 0, 3, 3, 3, -2))
sketch10.addConstraint(Sketcher.Constraint("Vertical", 0, 3, 1, 3))
sketch10.addConstraint(Sketcher.Constraint("Diameter", 0, 3.0))
sketch10.addConstraint(Sketcher.Constraint("DistanceY", 1, 3, 0, 3, 15.0))
sketch10.addConstraint(Sketcher.Constraint("DistanceX", 2, 3, 1, 3, 45.0))
sketch10.addConstraint(Sketcher.Constraint("DistanceY", -1, 1, 0, 3, 68.8))
pocket8 = body.newObject("PartDesign::Pocket", "Pocket007")
pocket8.Profile = sketch10
pocket8.Length = 5

# Sketch on XY plane
sketch11 = body.newObject("Sketcher::SketchObject", "Sketch010")
sketch11.AttachmentSupport = (doc.getObject("XY_Plane"), [""])
sketch11.MapMode = "FlatFace"
sketch11.addGeometry(Part.LineSegment(App.Vector(34, 77, 0), App.Vector(34, 73, 0)), False)
sketch11.addGeometry(Part.LineSegment(App.Vector(34, 73, 0), App.Vector(-34, 73, 0)), False)
sketch11.addGeometry(Part.LineSegment(App.Vector(-34, 73, 0), App.Vector(-34, 77, 0)), False)
sketch11.addGeometry(Part.LineSegment(App.Vector(-34, 77, 0), App.Vector(34, 77, 0)), False)
sketch11.addConstraint(Sketcher.Constraint("Coincident", 0, 2, 1, 1))
sketch11.addConstraint(Sketcher.Constraint("Coincident", 1, 2, 2, 1))
sketch11.addConstraint(Sketcher.Constraint("Coincident", 2, 2, 3, 1))
sketch11.addConstraint(Sketcher.Constraint("Coincident", 3, 2, 0, 1))
sketch11.addConstraint(Sketcher.Constraint("Vertical", 0))
sketch11.addConstraint(Sketcher.Constraint("Horizontal", 1))
sketch11.addConstraint(Sketcher.Constraint("Vertical", 2))
sketch11.addConstraint(Sketcher.Constraint("Horizontal", 3))
sketch11.addConstraint(Sketcher.Constraint("DistanceX", 1, 2, 1, 1, 68.0))
sketch11.addConstraint(Sketcher.Constraint("DistanceY", 0, 2, 0, 1, 4.0))
sketch11.addConstraint(Sketcher.Constraint("DistanceX", -1, 1, 0, 2, 34.0))
sketch11.addConstraint(Sketcher.Constraint("DistanceY", -1, 1, 0, 2, 73.0))
pocket9 = body.newObject("PartDesign::Pocket", "Pocket008")
pocket9.Profile = sketch11
pocket9.Length = 10
pocket9.Reversed = True

# Sketch on XY plane
sketch12 = body.newObject("Sketcher::SketchObject", "Sketch011")
sketch12.AttachmentSupport = (doc.getObject("XY_Plane"), [""])
sketch12.MapMode = "FlatFace"
sketch12.AttachmentOffset = App.Placement(App.Vector(0, 0, 5), App.Rotation())
sketch12.addGeometry(Part.Circle(App.Vector(-45, -12.5, 0), App.Vector(0, 0, 1), 1.5), False)
sketch12.addGeometry(Part.Circle(App.Vector(-38, 49, 0), App.Vector(0, 0, 1), 1.5), False)
sketch12.addGeometry(Part.Circle(App.Vector(38, 49, 0), App.Vector(0, 0, 1), 1.5), False)
sketch12.addGeometry(Part.Circle(App.Vector(45, -12.5, 0), App.Vector(0, 0, 1), 1.5), False)
sketch12.addConstraint(Sketcher.Constraint("Equal", 0, 1))
sketch12.addConstraint(Sketcher.Constraint("Equal", 1, 2))
sketch12.addConstraint(Sketcher.Constraint("Equal", 2, 3))
sketch12.addConstraint(Sketcher.Constraint("Symmetric", 1, 3, 2, 3, -2))
sketch12.addConstraint(Sketcher.Constraint("Symmetric", 0, 3, 3, 3, -2))
sketch12.addConstraint(Sketcher.Constraint("Diameter", 0, 3.0))
sketch12.addConstraint(Sketcher.Constraint("DistanceX", 0, 3, -1, 1, 45.0))
sketch12.addConstraint(Sketcher.Constraint("DistanceX", 1, 3, -1, 1, 38.0))
sketch12.addConstraint(Sketcher.Constraint("DistanceY", -1, 1, 1, 3, 49.0))
sketch12.addConstraint(Sketcher.Constraint("DistanceY", 0, 3, -1, 1, 12.5))
pocket10 = body.newObject("PartDesign::Pocket", "Pocket009")
pocket10.Profile = sketch12
pocket10.Type = "ThroughAll"

# Sketch on XY plane
sketch13 = body.newObject("Sketcher::SketchObject", "Sketch012")
sketch13.AttachmentSupport = (doc.getObject("XY_Plane"), [""])
sketch13.MapMode = "FlatFace"
sketch13.AttachmentOffset = App.Placement(App.Vector(0, 0, 5), App.Rotation())
sketch13.addGeometry(Part.Circle(App.Vector(-70.6, -32.2, 0), App.Vector(0, 0, 1), 1.5), False)
sketch13.addGeometry(Part.Circle(App.Vector(-70.6, 10, 0), App.Vector(0, 0, 1), 1.5), False)
sketch13.addGeometry(Part.Circle(App.Vector(70.6, 10, 0), App.Vector(0, 0, 1), 1.5), False)
sketch13.addGeometry(Part.Circle(App.Vector(70.6, -32.2, 0), App.Vector(0, 0, 1), 1.5), False)
sketch13.addConstraint(Sketcher.Constraint("Equal", 0, 1))
sketch13.addConstraint(Sketcher.Constraint("Equal", 1, 2))
sketch13.addConstraint(Sketcher.Constraint("Equal", 2, 3))
sketch13.addConstraint(Sketcher.Constraint("Symmetric", 1, 3, 2, 3, -2))
sketch13.addConstraint(Sketcher.Constraint("Symmetric", 0, 3, 3, 3, -2))
sketch13.addConstraint(Sketcher.Constraint("Vertical", 0, 3, 1, 3))
sketch13.addConstraint(Sketcher.Constraint("Diameter", 0, 3.0))
sketch13.addConstraint(Sketcher.Constraint("DistanceY", -1, 1, 1, 3, 10.0))
sketch13.addConstraint(Sketcher.Constraint("DistanceX", 0, 3, -1, 1, 70.6))
sketch13.addConstraint(Sketcher.Constraint("DistanceY", 0, 3, -1, 1, 32.2))
pocket11 = body.newObject("PartDesign::Pocket", "Pocket010")
pocket11.Profile = sketch13
pocket11.Length = 10

doc.recompute()
